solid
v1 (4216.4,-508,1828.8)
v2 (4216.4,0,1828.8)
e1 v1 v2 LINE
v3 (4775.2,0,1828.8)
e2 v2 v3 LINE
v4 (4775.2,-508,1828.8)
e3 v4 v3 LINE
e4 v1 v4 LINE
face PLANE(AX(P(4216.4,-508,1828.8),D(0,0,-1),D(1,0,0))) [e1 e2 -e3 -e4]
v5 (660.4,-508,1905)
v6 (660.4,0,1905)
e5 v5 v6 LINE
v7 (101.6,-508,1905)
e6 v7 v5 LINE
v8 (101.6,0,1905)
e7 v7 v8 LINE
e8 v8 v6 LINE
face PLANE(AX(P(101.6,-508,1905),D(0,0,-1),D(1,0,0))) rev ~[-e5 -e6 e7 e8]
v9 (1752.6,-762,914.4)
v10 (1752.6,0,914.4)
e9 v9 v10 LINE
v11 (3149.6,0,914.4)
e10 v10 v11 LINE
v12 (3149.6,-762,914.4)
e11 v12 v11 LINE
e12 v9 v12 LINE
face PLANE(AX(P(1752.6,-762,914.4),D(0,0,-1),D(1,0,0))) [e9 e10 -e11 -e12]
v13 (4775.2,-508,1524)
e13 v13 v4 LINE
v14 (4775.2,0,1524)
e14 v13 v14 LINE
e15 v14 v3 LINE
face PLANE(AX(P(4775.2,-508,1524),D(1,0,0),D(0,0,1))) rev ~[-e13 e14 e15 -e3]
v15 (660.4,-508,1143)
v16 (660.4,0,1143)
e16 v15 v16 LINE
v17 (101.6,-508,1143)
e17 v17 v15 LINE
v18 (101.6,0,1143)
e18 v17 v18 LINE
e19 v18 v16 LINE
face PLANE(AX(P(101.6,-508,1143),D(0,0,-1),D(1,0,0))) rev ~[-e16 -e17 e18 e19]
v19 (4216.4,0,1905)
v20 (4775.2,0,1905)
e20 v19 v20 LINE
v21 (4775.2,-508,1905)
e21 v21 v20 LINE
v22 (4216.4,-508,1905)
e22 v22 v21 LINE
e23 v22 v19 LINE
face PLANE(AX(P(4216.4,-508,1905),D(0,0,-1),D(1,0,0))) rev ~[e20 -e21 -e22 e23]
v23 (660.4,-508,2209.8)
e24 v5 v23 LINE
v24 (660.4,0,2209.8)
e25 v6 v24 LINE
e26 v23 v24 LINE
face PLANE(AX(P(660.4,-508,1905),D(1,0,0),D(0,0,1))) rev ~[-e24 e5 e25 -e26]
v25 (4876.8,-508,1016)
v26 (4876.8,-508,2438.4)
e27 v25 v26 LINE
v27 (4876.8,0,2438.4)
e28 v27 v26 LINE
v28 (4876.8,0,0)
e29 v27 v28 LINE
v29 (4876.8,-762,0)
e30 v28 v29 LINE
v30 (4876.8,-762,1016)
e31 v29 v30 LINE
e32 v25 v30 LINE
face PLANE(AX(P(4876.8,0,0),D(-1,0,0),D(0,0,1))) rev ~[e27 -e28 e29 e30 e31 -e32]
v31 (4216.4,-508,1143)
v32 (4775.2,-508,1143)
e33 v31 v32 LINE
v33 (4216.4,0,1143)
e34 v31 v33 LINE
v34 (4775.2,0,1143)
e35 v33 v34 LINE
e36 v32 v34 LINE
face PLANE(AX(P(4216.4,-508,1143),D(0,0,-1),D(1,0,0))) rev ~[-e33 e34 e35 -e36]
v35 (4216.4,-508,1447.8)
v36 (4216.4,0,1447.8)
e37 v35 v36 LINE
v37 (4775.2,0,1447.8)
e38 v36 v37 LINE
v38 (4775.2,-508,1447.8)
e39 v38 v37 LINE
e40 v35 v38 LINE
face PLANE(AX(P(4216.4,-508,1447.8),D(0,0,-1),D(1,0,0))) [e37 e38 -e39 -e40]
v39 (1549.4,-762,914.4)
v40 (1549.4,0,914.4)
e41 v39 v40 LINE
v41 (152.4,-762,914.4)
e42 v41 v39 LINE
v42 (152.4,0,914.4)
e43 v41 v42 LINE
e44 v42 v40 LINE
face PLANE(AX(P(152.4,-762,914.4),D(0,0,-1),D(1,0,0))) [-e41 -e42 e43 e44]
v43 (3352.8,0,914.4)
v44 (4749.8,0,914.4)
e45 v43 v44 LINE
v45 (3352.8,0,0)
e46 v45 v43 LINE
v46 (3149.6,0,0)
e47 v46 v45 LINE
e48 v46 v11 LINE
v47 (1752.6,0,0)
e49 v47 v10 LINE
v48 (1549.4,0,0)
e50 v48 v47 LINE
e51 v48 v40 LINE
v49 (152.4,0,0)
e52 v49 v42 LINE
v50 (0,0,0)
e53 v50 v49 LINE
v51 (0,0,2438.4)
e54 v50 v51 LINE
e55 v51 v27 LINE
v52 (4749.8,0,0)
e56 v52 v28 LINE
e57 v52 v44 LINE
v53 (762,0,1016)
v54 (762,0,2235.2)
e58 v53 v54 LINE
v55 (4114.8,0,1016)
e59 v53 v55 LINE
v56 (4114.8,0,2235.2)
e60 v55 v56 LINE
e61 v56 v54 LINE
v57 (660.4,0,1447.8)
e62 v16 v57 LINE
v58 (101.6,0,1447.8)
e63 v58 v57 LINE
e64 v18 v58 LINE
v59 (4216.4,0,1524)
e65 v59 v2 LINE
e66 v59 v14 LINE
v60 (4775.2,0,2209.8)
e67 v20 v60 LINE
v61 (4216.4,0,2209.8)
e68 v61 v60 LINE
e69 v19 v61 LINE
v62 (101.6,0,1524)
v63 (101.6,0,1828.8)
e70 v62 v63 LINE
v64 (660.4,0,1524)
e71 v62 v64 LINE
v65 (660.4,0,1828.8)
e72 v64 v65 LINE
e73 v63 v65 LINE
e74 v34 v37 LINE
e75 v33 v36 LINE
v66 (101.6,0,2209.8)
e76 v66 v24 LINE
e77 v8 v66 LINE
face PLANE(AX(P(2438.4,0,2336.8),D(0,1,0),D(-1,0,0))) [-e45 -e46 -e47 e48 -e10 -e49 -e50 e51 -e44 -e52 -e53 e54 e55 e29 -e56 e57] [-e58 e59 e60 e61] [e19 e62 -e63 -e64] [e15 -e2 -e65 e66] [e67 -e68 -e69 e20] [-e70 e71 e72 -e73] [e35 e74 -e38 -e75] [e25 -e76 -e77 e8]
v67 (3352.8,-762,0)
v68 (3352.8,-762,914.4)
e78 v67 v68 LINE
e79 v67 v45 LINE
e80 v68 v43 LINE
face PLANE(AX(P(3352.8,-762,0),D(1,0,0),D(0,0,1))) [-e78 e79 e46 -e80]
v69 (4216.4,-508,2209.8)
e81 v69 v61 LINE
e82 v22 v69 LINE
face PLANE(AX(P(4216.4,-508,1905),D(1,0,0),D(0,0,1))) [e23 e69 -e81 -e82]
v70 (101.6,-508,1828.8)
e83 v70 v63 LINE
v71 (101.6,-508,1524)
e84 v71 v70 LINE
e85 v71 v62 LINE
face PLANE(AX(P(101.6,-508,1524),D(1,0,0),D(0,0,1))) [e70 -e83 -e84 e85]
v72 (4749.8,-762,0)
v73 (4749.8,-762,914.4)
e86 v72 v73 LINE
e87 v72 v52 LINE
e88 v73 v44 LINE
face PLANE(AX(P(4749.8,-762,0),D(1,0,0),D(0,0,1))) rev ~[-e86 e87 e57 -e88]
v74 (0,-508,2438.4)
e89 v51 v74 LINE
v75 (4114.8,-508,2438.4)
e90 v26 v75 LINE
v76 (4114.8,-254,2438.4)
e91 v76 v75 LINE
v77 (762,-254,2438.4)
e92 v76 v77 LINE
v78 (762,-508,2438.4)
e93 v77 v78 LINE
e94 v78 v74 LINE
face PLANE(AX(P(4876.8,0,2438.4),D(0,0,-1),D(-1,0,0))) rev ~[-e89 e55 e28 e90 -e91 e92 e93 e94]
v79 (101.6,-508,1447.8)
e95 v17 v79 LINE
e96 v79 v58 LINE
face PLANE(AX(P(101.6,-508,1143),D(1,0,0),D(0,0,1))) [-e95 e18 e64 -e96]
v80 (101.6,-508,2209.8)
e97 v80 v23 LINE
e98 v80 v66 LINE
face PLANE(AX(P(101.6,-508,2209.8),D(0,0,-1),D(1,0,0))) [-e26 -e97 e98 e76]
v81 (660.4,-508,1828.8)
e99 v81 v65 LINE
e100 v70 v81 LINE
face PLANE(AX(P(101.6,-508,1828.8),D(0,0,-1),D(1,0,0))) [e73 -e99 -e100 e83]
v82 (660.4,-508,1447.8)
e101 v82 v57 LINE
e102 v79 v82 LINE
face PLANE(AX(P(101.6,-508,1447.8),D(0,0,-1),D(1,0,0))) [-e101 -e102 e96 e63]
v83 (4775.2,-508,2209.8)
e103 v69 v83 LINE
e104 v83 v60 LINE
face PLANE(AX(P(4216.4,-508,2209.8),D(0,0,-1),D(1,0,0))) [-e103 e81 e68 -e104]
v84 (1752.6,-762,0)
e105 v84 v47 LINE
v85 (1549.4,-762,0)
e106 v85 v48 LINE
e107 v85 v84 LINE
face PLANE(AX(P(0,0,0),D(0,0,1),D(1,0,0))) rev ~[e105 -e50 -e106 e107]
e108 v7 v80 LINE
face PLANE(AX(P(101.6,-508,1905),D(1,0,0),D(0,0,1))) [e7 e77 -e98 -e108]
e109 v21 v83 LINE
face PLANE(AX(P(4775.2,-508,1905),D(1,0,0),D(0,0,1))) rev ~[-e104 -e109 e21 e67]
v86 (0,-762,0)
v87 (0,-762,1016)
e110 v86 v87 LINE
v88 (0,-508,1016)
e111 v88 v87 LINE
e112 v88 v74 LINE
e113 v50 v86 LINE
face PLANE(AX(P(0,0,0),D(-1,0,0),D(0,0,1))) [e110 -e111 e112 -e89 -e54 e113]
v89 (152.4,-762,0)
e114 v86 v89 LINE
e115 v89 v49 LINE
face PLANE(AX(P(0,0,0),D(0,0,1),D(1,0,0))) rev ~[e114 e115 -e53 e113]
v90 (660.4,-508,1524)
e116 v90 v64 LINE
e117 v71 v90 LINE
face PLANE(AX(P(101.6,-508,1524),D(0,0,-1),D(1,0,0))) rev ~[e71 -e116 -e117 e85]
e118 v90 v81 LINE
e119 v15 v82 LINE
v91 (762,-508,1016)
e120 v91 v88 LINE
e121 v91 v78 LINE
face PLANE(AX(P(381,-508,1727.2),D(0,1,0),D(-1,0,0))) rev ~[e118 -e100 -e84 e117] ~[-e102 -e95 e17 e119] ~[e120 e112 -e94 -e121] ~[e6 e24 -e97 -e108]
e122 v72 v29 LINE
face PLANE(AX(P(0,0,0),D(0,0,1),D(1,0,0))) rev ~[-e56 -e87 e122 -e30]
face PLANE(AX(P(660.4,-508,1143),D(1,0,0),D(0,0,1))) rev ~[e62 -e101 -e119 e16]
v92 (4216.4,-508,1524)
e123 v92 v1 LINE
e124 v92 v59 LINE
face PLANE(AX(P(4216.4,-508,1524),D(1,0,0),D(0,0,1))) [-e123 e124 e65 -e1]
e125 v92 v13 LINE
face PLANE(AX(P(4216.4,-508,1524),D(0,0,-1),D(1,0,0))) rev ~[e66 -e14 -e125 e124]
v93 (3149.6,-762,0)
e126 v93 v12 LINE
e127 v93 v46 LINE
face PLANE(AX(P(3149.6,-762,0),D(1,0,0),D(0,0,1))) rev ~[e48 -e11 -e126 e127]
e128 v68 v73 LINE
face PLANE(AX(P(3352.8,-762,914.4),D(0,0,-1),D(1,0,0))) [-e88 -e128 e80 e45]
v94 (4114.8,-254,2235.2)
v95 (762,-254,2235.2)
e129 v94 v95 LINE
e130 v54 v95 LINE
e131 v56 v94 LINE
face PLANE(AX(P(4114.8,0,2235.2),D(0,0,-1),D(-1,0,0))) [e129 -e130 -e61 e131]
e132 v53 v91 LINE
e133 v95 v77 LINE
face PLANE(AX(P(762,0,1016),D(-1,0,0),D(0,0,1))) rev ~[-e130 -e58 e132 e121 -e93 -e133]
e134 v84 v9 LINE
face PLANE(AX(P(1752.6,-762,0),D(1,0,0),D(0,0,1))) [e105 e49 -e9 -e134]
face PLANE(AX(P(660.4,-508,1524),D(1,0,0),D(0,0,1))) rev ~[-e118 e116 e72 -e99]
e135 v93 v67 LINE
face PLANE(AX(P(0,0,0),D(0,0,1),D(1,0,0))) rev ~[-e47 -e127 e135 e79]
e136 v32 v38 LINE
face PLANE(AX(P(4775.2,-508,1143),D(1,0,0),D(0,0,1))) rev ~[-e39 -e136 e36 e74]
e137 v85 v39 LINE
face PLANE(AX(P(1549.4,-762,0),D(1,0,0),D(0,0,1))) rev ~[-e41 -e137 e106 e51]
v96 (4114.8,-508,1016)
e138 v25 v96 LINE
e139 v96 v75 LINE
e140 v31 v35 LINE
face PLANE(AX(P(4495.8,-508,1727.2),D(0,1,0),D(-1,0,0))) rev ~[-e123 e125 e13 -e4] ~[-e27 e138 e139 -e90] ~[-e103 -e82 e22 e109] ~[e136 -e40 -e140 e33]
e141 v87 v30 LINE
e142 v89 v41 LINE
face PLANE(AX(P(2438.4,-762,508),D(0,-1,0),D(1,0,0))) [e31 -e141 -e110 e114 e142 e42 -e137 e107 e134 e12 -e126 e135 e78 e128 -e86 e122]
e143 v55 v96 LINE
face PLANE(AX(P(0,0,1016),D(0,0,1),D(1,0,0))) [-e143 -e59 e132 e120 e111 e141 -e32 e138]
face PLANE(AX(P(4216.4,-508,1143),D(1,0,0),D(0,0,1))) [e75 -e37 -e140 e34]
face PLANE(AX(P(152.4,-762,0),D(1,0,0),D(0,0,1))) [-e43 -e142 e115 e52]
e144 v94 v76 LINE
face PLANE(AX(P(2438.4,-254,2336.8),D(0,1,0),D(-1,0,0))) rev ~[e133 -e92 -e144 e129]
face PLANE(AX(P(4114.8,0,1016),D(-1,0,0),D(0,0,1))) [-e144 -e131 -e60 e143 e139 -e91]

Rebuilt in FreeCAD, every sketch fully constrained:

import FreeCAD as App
import Part
import Sketcher
from FreeCAD import Vector
Q = App.Units.Quantity


def add_polygon(sketch, points):
    """Adds a closed chain of lines whose ends are joined by coincident constraints."""
    first, n = sketch.GeometryCount, len(points)
    for a, b in zip(points, points[1:] + points[:1]):
        sketch.addGeometry(Part.LineSegment(App.Vector(*a, 0), App.Vector(*b, 0)), False)
    for i in range(n):
        sketch.addConstraint(Sketcher.Constraint("Coincident", first + i, 2, first + (i + 1) % n, 1))

doc = App.newDocument("Part")
params = doc.addObject("Spreadsheet::Sheet", "Params")
for row, (alias, value) in enumerate([
    ("sketch1_width", "192 in"),
    ("sketch1_height", "40 in"),
    ("pad1_length", "30 in"),
    ("sketch2_width", "30 in"),
    ("sketch2_height", "56 in"),
    ("pad2_length", "20 in"),
    ("sketch3_width", "132 in"),
    ("sketch3_height", "8 in"),
    ("pad3_length", "10 in"),
    ("sketch4_width", "55 in"),
    ("sketch4_height", "36 in"),
    ("sketch5_width", "22 in"),
    ("sketch5_height", "12 in"),
], start=1):
    params.set(f"A{row}", alias)
    params.set(f"B{row}", "=" + value)
    params.setAlias(f"B{row}", alias)

body = doc.addObject("PartDesign::Body", "Body")

sketch1 = body.newObject("Sketcher::SketchObject", "Sketch")
sketch1.AttachmentSupport = (doc.getObject("XZ_Plane"), [""])
sketch1.MapMode = "FlatFace"
add_polygon(sketch1, [(0, 1016), (0, 0), (4877, 0), (4877, 1016)])
sketch1.addConstraint([
    Sketcher.Constraint("Vertical", 0),
    Sketcher.Constraint("Horizontal", 1),
    Sketcher.Constraint("Vertical", 2),
    Sketcher.Constraint("Horizontal", 3),
    Sketcher.Constraint("Coincident", 0, 2, -1, 1),
    Sketcher.Constraint("DistanceX", 1, 1, 1, 2, Q("192 in")),
    Sketcher.Constraint("DistanceY", 0, 2, 0, 1, Q("40 in")),
])
sketch1.setExpression("Constraints[9]", "Params.sketch1_width")
sketch1.setExpression("Constraints[10]", "Params.sketch1_height")
pad1 = body.newObject("PartDesign::Pad", "Pad")
pad1.Profile = sketch1
pad1.setExpression("Length", "Params.pad1_length")

sketch2 = body.newObject("Sketcher::SketchObject", "Sketch001")
sketch2.AttachmentSupport = (doc.getObject("XZ_Plane"), [""])
sketch2.MapMode = "FlatFace"
add_polygon(sketch2, [(762, 2438), (762, 1016), (0, 1016), (0, 2438)])
add_polygon(sketch2, [(4877, 2438), (4877, 1016), (4115, 1016), (4115, 2438)])
sketch2.addConstraint([
    Sketcher.Constraint("Vertical", 0),
    Sketcher.Constraint("Horizontal", 1),
    Sketcher.Constraint("Vertical", 2),
    Sketcher.Constraint("Horizontal", 3),
    Sketcher.Constraint("Vertical", 4),
    Sketcher.Constraint("Horizontal", 5),
    Sketcher.Constraint("Vertical", 6),
    Sketcher.Constraint("Horizontal", 7),
    Sketcher.Constraint("PointOnObject", 1, 2, -2),
    Sketcher.Constraint("Horizontal", 1, 2, 4, 2),
    Sketcher.Constraint("Horizontal", 3, 2, 6, 2),
    Sketcher.Constraint("Equal", 3, 5),
    Sketcher.Constraint("DistanceX", 1, 2, 1, 1, Q("30 in")),
    Sketcher.Constraint("DistanceY", 0, 2, 0, 1, Q("56 in")),
    Sketcher.Constraint("DistanceY", -1, 1, 0, 2, Q("40 in")),
    Sketcher.Constraint("DistanceX", -1, 1, 4, 2, Q("192 in")),
])
sketch2.setExpression("Constraints[20]", "Params.sketch2_width")
sketch2.setExpression("Constraints[21]", "Params.sketch2_height")
pad2 = body.newObject("PartDesign::Pad", "Pad001")
pad2.Profile = sketch2
pad2.setExpression("Length", "Params.pad2_length")

sketch3 = body.newObject("Sketcher::SketchObject", "Sketch002")
sketch3.AttachmentSupport = (doc.getObject("XZ_Plane"), [""])
sketch3.MapMode = "FlatFace"
add_polygon(sketch3, [(4115, 2438), (4115, 2235), (762, 2235), (762, 2438)])
sketch3.addConstraint([
    Sketcher.Constraint("Vertical", 0),
    Sketcher.Constraint("Horizontal", 1),
    Sketcher.Constraint("Vertical", 2),
    Sketcher.Constraint("Horizontal", 3),
    Sketcher.Constraint("DistanceX", 1, 2, 1, 1, Q("132 in")),
    Sketcher.Constraint("DistanceY", 0, 2, 0, 1, Q("8 in")),
    Sketcher.Constraint("DistanceX", -1, 1, 0, 2, Q("162 in")),
    Sketcher.Constraint("DistanceY", -1, 1, 0, 2, Q("88 in")),
])
sketch3.setExpression("Constraints[8]", "Params.sketch3_width")
sketch3.setExpression("Constraints[9]", "Params.sketch3_height")
pad3 = body.newObject("PartDesign::Pad", "Pad002")
pad3.Profile = sketch3
pad3.setExpression("Length", "Params.pad3_length")

sketch4 = body.newObject("Sketcher::SketchObject", "Sketch003")
sketch4.AttachmentSupport = (doc.getObject("XZ_Plane"), [""])
sketch4.MapMode = "FlatFace"
sketch4.AttachmentOffset = App.Placement(Vector(0, 0, 30 * 25.4), App.Rotation())
add_polygon(sketch4, [(152, 914), (152, 0), (1549, 0), (1549, 914)])
add_polygon(sketch4, [(1753, 914), (1753, 0), (3150, 0), (3150, 914)])
add_polygon(sketch4, [(3353, 914), (3353, 0), (4750, 0), (4750, 914)])
sketch4.addConstraint([
    Sketcher.Constraint("Vertical", 0),
    Sketcher.Constraint("Horizontal", 1),
    Sketcher.Constraint("Vertical", 2),
    Sketcher.Constraint("Horizontal", 3),
    Sketcher.Constraint("Vertical", 4),
    Sketcher.Constraint("Horizontal", 5),
    Sketcher.Constraint("Vertical", 6),
    Sketcher.Constraint("Horizontal", 7),
    Sketcher.Constraint("Vertical", 8),
    Sketcher.Constraint("Horizontal", 9),
    Sketcher.Constraint("Vertical", 10),
    Sketcher.Constraint("Horizontal", 11),
    Sketcher.Constraint("PointOnObject", 0, 2, -1),
    Sketcher.Constraint("PointOnObject", 4, 2, -1),
    Sketcher.Constraint("PointOnObject", 8, 2, -1),
    Sketcher.Constraint("Horizontal", 3, 2, 6, 2),
    Sketcher.Constraint("Horizontal", 7, 2, 10, 2),
    Sketcher.Constraint("Equal", 3, 5),
    Sketcher.Constraint("Equal", 7, 9),
    Sketcher.Constraint("DistanceX", 1, 1, 1, 2, Q("55 in")),
    Sketcher.Constraint("DistanceY", 0, 2, 0, 1, Q("36 in")),
    Sketcher.Constraint("DistanceX", -1, 1, 0, 2, Q("6 in")),
    Sketcher.Constraint("DistanceX", -1, 1, 4, 2, Q("69 in")),
    Sketcher.Constraint("DistanceX", -1, 1, 8, 2, Q("132 in")),
])
sketch4.setExpression("Constraints[31]", "Params.sketch4_width")
sketch4.setExpression("Constraints[32]", "Params.sketch4_height")
pocket1 = body.newObject("PartDesign::Pocket", "Pocket")
pocket1.Profile = sketch4
pocket1.Type = "ThroughAll"

sketch5 = body.newObject("Sketcher::SketchObject", "Sketch004")
sketch5.AttachmentSupport = (doc.getObject("XZ_Plane"), [""])
sketch5.MapMode = "FlatFace"
sketch5.AttachmentOffset = App.Placement(Vector(0, 0, 20 * 25.4), App.Rotation())
add_polygon(sketch5, [(102, 1448), (102, 1143), (660, 1143), (660, 1448)])
add_polygon(sketch5, [(102, 1829), (102, 1524), (660, 1524), (660, 1829)])
add_polygon(sketch5, [(102, 2210), (102, 1905), (660, 1905), (660, 2210)])
add_polygon(sketch5, [(4216, 1448), (4216, 1143), (4775, 1143), (4775, 1448)])
add_polygon(sketch5, [(4216, 2210), (4216, 1905), (4775, 1905), (4775, 2210)])
add_polygon(sketch5, [(4216, 1829), (4216, 1524), (4775, 1524), (4775, 1829)])
sketch5.addConstraint([
    Sketcher.Constraint("Vertical", 0),
    Sketcher.Constraint("Horizontal", 1),
    Sketcher.Constraint("Vertical", 2),
    Sketcher.Constraint("Horizontal", 3),
    Sketcher.Constraint("Vertical", 4),
    Sketcher.Constraint("Horizontal", 5),
    Sketcher.Constraint("Vertical", 6),
    Sketcher.Constraint("Horizontal", 7),
    Sketcher.Constraint("Vertical", 8),
    Sketcher.Constraint("Horizontal", 9),
    Sketcher.Constraint("Vertical", 10),
    Sketcher.Constraint("Horizontal", 11),
    Sketcher.Constraint("Vertical", 12),
    Sketcher.Constraint("Horizontal", 13),
    Sketcher.Constraint("Vertical", 14),
    Sketcher.Constraint("Horizontal", 15),
    Sketcher.Constraint("Vertical", 16),
    Sketcher.Constraint("Horizontal", 17),
    Sketcher.Constraint("Vertical", 18),
    Sketcher.Constraint("Horizontal", 19),
    Sketcher.Constraint("Vertical", 20),
    Sketcher.Constraint("Horizontal", 21),
    Sketcher.Constraint("Vertical", 22),
    Sketcher.Constraint("Horizontal", 23),
    Sketcher.Constraint("Horizontal", 1, 2, 12, 2),
    Sketcher.Constraint("Horizontal", 3, 2, 14, 2),
    Sketcher.Constraint("Horizontal", 9, 2, 16, 2),
    Sketcher.Constraint("Horizontal", 11, 2, 18, 2),
    Sketcher.Constraint("Horizontal", 5, 2, 20, 2),
    Sketcher.Constraint("Horizontal", 7, 2, 22, 2),
    Sketcher.Constraint("Vertical", 3, 2, 4, 2),
    Sketcher.Constraint("Vertical", 2, 2, 5, 2),
    Sketcher.Constraint("Vertical", 7, 2, 8, 2),
    Sketcher.Constraint("Vertical", 6, 2, 9, 2),
    Sketcher.Constraint("Vertical", 15, 2, 16, 2),
    Sketcher.Constraint("Vertical", 14, 2, 17, 2),
    Sketcher.Constraint("Vertical", 19, 2, 20, 2),
    Sketcher.Constraint("Vertical", 18, 2, 21, 2),
    Sketcher.Constraint("Equal", 11, 13),
    Sketcher.Constraint("Equal", 2, 4),
    Sketcher.Constraint("Equal", 6, 8),
    Sketcher.Constraint("DistanceX", 1, 1, 1, 2, Q("22 in")),
    Sketcher.Constraint("DistanceY", 0, 2, 0, 1, Q("12 in")),
    Sketcher.Constraint("DistanceX", -1, 1, 0, 2, Q("4 in")),
    Sketcher.Constraint("DistanceY", -1, 1, 0, 2, Q("45 in")),
    Sketcher.Constraint("DistanceY", -1, 1, 4, 2, Q("60 in")),
    Sketcher.Constraint("DistanceY", -1, 1, 8, 2, Q("75 in")),
    Sketcher.Constraint("DistanceX", -1, 1, 12, 2, Q("166 in")),
])
sketch5.setExpression("Constraints[65]", "Params.sketch5_width")
sketch5.setExpression("Constraints[66]", "Params.sketch5_height")
pocket2 = body.newObject("PartDesign::Pocket", "Pocket001")
pocket2.Profile = sketch5
pocket2.Type = "ThroughAll"

doc.recompute()
